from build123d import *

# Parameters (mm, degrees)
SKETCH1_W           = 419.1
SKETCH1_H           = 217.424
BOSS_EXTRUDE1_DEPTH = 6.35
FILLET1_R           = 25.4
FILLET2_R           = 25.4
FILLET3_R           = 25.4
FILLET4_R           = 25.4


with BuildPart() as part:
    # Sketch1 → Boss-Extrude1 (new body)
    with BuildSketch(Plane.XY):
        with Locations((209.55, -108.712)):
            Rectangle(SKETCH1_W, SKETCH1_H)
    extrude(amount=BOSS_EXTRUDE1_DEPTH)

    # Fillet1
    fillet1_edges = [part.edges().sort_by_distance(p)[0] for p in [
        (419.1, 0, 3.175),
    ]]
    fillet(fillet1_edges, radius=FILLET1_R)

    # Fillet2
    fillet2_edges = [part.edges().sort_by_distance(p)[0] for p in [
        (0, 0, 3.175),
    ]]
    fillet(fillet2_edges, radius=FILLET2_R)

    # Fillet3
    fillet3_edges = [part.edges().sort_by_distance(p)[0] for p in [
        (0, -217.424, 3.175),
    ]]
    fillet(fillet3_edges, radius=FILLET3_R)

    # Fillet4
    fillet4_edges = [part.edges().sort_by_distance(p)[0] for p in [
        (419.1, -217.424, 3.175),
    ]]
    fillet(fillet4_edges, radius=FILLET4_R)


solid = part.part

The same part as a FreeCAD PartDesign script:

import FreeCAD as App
import Part
import Sketcher
from FreeCAD import Vector
Q = App.Units.Quantity


def edges_at(feature, points):
    """Names of the edges that pass closest to the given points."""
    edges = feature.Shape.Edges
    near = lambda p: min(range(len(edges)), key=lambda i: edges[i].distToShape(Part.Vertex(*p))[0])
    return sorted({f"Edge{near(p) + 1}" for p in points})


def add_polygon(sketch, points):
    """Adds a closed chain of lines whose ends are joined by coincident constraints."""
    first, n = sketch.GeometryCount, len(points)
    for a, b in zip(points, points[1:] + points[:1]):
        sketch.addGeometry(Part.LineSegment(App.Vector(*a, 0), App.Vector(*b, 0)), False)
    for i in range(n):
        sketch.addConstraint(Sketcher.Constraint("Coincident", first + i, 2, first + (i + 1) % n, 1))

doc = App.newDocument("Part")
body = doc.addObject("PartDesign::Body", "Body")

# Sketch on XY plane
sketch1 = body.newObject("Sketcher::SketchObject", "Sketch")
sketch1.AttachmentSupport = (doc.getObject("XY_Plane"), [""])
sketch1.MapMode = "FlatFace"
add_polygon(sketch1, [(0, 0), (0, -217), (419, -217), (419, 0)])  # lines 0-3
sketch1.addConstraint([
    Sketcher.Constraint("Vertical", 0),
    Sketcher.Constraint("Horizontal", 1),
    Sketcher.Constraint("Vertical", 2),
    Sketcher.Constraint("Horizontal", 3),
    Sketcher.Constraint("Coincident", 3, 2, -1, 1),
    Sketcher.Constraint("DistanceX", 1, 1, 1, 2, Q("16.5 in")),
    Sketcher.Constraint("DistanceY", 0, 2, 0, 1, Q("8.56 in")),
])
pad1 = body.newObject("PartDesign::Pad", "Pad")
pad1.Profile = sketch1
pad1.Length = Q("0.25 in")
doc.recompute()

fillet = body.newObject("PartDesign::Fillet", "Fillet")
fillet.Base = (pad1, edges_at(pad1, [(419.1, 0, 3.175)]))
fillet.Radius = Q("1 in")
doc.recompute()

fillet2 = body.newObject("PartDesign::Fillet", "Fillet001")
fillet2.Base = (fillet, edges_at(fillet, [(0, 0, 3.175)]))
fillet2.Radius = Q("1 in")
doc.recompute()

fillet3 = body.newObject("PartDesign::Fillet", "Fillet002")
fillet3.Base = (fillet2, edges_at(fillet2, [(0, -217.424, 3.175)]))
fillet3.Radius = Q("1 in")
doc.recompute()

fillet4 = body.newObject("PartDesign::Fillet", "Fillet003")
fillet4.Base = (fillet3, edges_at(fillet3, [(419.1, -217.424, 3.175)]))
fillet4.Radius = Q("1 in")

doc.recompute()
